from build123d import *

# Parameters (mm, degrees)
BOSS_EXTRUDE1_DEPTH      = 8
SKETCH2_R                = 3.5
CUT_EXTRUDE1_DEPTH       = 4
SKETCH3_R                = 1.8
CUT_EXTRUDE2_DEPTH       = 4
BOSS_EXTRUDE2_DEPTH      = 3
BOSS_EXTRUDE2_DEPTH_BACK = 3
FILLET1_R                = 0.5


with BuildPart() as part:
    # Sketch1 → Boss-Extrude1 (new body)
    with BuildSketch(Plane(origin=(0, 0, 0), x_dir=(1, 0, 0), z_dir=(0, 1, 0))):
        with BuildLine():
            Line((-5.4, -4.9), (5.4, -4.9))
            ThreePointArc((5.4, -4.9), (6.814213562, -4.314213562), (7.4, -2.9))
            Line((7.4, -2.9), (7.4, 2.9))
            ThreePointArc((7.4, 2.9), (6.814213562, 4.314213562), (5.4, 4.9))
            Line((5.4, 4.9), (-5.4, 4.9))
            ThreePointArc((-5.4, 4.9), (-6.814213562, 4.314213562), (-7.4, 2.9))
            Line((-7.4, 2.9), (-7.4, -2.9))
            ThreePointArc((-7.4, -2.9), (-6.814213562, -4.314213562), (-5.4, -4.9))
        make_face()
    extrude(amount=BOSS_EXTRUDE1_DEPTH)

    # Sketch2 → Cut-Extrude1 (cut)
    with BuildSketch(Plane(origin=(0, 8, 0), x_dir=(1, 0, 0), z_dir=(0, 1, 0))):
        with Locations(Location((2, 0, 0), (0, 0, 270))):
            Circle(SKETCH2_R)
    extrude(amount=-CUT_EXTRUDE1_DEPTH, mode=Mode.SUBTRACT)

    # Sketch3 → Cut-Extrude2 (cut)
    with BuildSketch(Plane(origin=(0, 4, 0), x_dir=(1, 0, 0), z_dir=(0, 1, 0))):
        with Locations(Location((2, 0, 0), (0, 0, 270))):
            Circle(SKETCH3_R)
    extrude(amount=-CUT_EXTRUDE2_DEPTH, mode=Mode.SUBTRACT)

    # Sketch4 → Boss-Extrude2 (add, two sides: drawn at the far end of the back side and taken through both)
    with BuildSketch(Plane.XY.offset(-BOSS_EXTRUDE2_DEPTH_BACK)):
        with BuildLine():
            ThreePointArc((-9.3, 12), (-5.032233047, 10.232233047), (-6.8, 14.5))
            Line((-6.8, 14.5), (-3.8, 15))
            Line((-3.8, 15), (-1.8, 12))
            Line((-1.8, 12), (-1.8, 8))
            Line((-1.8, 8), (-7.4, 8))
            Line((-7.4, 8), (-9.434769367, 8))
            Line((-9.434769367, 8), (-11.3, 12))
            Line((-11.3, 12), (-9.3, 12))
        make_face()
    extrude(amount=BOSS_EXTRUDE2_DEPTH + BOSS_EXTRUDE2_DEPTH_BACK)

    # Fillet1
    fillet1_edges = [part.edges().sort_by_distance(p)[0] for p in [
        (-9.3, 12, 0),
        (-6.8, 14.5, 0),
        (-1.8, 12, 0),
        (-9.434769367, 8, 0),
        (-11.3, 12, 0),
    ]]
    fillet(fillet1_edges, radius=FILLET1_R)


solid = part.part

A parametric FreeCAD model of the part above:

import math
import FreeCAD as App
import Part
import Sketcher

V = App.Vector
Q = App.Units.Quantity


def edges_at(feature, points):
    """Names of the edges that pass closest to the given points."""
    edges = feature.Shape.Edges
    near = lambda p: min(range(len(edges)), key=lambda i: edges[i].distToShape(Part.Vertex(*p))[0])
    return sorted({f"Edge{near(p) + 1}" for p in points})

doc = App.newDocument("Part")
body = doc.addObject("PartDesign::Body", "Body")

sketch1 = doc.addObject("Sketcher::SketchObject", "Sketch")
body.addObject(sketch1)
sketch1.AttachmentSupport = (doc.XZ_Plane, [""])
sketch1.MapMode = "FlatFace"
sketch1.addGeometry([
    Part.LineSegment(V(-5.4, 4.9, 0), V(5.4, 4.9, 0)),
    Part.ArcOfCircle(Part.Circle(V(5.4, 2.9, 0), V(0, 0, 1), 2), math.radians(0), math.radians(90)),
    Part.LineSegment(V(7.4, 2.9, 0), V(7.4, -2.9, 0)),
    Part.ArcOfCircle(Part.Circle(V(5.4, -2.9, 0), V(0, 0, 1), 2), math.radians(-90), math.radians(0)),
    Part.LineSegment(V(5.4, -4.9, 0), V(-5.4, -4.9, 0)),
    Part.ArcOfCircle(Part.Circle(V(-5.4, -2.9, 0), V(0, 0, 1), 2), math.radians(-180), math.radians(-90)),
    Part.LineSegment(V(-7.4, -2.9, 0), V(-7.4, 2.9, 0)),
    Part.ArcOfCircle(Part.Circle(V(-5.4, 2.9, 0), V(0, 0, 1), 2), math.radians(90), math.radians(180)),
], False)
sketch1.addConstraint([
    Sketcher.Constraint("Tangent", 0, 2, 1, 2),
    Sketcher.Constraint("Tangent", 1, 1, 2, 1),
    Sketcher.Constraint("Tangent", 2, 2, 3, 2),
    Sketcher.Constraint("Tangent", 3, 1, 4, 1),
    Sketcher.Constraint("Tangent", 4, 2, 5, 2),
    Sketcher.Constraint("Tangent", 5, 1, 6, 1),
    Sketcher.Constraint("Tangent", 6, 2, 7, 2),
    Sketcher.Constraint("Tangent", 7, 1, 0, 1),
    Sketcher.Constraint("Horizontal", 0),
    Sketcher.Constraint("Vertical", 2),
    Sketcher.Constraint("Horizontal", 4),
    Sketcher.Constraint("Vertical", 6),
    Sketcher.Constraint("Equal", 1, 3),
    Sketcher.Constraint("Equal", 3, 5),
    Sketcher.Constraint("Equal", 5, 7),
    Sketcher.Constraint("Symmetric", 1, 3, 5, 3, -1, 1),
    Sketcher.Constraint("Radius", 1, Q("2 mm")),
    Sketcher.Constraint("DistanceX", 0, 1, 0, 2, Q("10.8 mm")),
    Sketcher.Constraint("DistanceY", 2, 2, 2, 1, Q("5.8 mm")),
])
pad1 = doc.addObject("PartDesign::Pad", "Pad")
body.addObject(pad1)
pad1.Profile = sketch1
pad1.Length = 8
pad1.Reversed = True

sketch2 = doc.addObject("Sketcher::SketchObject", "Sketch001")
body.addObject(sketch2)
sketch2.AttachmentSupport = (doc.XZ_Plane, [""])
sketch2.MapMode = "FlatFace"
sketch2.AttachmentOffset = App.Placement(V(0, 0, -8), App.Rotation())
sketch2.addGeometry(Part.Circle(V(2, 0, 0), V(0, 0, 1), 3.5), False)
sketch2.addConstraint([
    Sketcher.Constraint("PointOnObject", 0, 3, -1),
    Sketcher.Constraint("Diameter", 0, Q("7 mm")),
    Sketcher.Constraint("DistanceX", -1, 1, 0, 3, Q("2 mm")),
])
pocket1 = doc.addObject("PartDesign::Pocket", "Pocket")
body.addObject(pocket1)
pocket1.Profile = sketch2
pocket1.Length = 4
pocket1.Reversed = True

sketch3 = doc.addObject("Sketcher::SketchObject", "Sketch002")
body.addObject(sketch3)
sketch3.AttachmentSupport = (doc.XZ_Plane, [""])
sketch3.MapMode = "FlatFace"
sketch3.AttachmentOffset = App.Placement(V(0, 0, -4), App.Rotation())
sketch3.addGeometry(Part.Circle(V(2, 0, 0), V(0, 0, 1), 1.8), False)
sketch3.addConstraint([
    Sketcher.Constraint("PointOnObject", 0, 3, -1),
    Sketcher.Constraint("Diameter", 0, Q("3.6 mm")),
    Sketcher.Constraint("DistanceX", -1, 1, 0, 3, Q("2 mm")),
])
pocket2 = doc.addObject("PartDesign::Pocket", "Pocket001")
body.addObject(pocket2)
pocket2.Profile = sketch3
pocket2.Length = 4
pocket2.Reversed = True

sketch4 = doc.addObject("Sketcher::SketchObject", "Sketch003")
body.addObject(sketch4)
sketch4.AttachmentSupport = (doc.XY_Plane, [""])
sketch4.MapMode = "FlatFace"
sketch4.addGeometry([
    Part.ArcOfCircle(Part.Circle(V(-6.8, 12, 0), V(0, 0, 1), 2.5), math.radians(180), math.radians(450)),
    Part.LineSegment(V(-9.3, 12, 0), V(-11.3, 12, 0)),
    Part.LineSegment(V(-11.3, 12, 0), V(-9.4, 8, 0)),
    Part.LineSegment(V(-9.4, 8, 0), V(-1.8, 8, 0)),
    Part.LineSegment(V(-1.8, 8, 0), V(-1.8, 12, 0)),
    Part.LineSegment(V(-1.8, 12, 0), V(-3.8, 15, 0)),
    Part.LineSegment(V(-3.8, 15, 0), V(-6.8, 14.5, 0)),
], False)
sketch4.addConstraint([
    Sketcher.Constraint("Coincident", 0, 1, 1, 1),
    Sketcher.Constraint("Coincident", 1, 2, 2, 1),
    Sketcher.Constraint("Coincident", 2, 2, 3, 1),
    Sketcher.Constraint("Coincident", 3, 2, 4, 1),
    Sketcher.Constraint("Coincident", 4, 2, 5, 1),
    Sketcher.Constraint("Coincident", 5, 2, 6, 1),
    Sketcher.Constraint("Coincident", 6, 2, 0, 2),
    Sketcher.Constraint("Horizontal", 1),
    Sketcher.Constraint("Horizontal", 3),
    Sketcher.Constraint("Vertical", 4),
    Sketcher.Constraint("Horizontal", 1, 2, 4, 2),
    Sketcher.Constraint("Vertical", 0, 3, 6, 2),
    Sketcher.Constraint("Radius", 0, Q("2.5 mm")),
    Sketcher.Constraint("DistanceX", 1, 2, 1, 1, Q("2 mm")),
    Sketcher.Constraint("DistanceY", 4, 1, 4, 2, Q("4 mm")),
    Sketcher.Constraint("Angle", 2, Q("-65 deg")),
    Sketcher.Constraint("DistanceY", -1, 1, 0, 3, Q("12 mm")),
    Sketcher.Constraint("DistanceY", -1, 1, 0, 1, Q("12 mm")),
    Sketcher.Constraint("DistanceY", -1, 1, 5, 2, Q("15 mm")),
    Sketcher.Constraint("DistanceX", 0, 3, 3, 2, Q("5 mm")),
    Sketcher.Constraint("DistanceX", 5, 2, 4, 2, Q("2 mm")),
    Sketcher.Constraint("DistanceX", 0, 3, -1, 1, Q("6.8 mm")),
])
pad2 = doc.addObject("PartDesign::Pad", "Pad001")
body.addObject(pad2)
pad2.Profile = sketch4
pad2.Type = "TwoLengths"
pad2.Length = 3
pad2.Length2 = 3
doc.recompute()

fillet = doc.addObject("PartDesign::Fillet", "Fillet")
body.addObject(fillet)
fillet.Base = (pad2, edges_at(pad2, [
    (-9.3, 12, 0),
    (-6.8, 14.5, 0),
    (-1.8, 12, 0),
    (-9.435, 8, 0),
    (-11.3, 12, 0),
]))
fillet.Radius = 0.5

doc.recompute()
